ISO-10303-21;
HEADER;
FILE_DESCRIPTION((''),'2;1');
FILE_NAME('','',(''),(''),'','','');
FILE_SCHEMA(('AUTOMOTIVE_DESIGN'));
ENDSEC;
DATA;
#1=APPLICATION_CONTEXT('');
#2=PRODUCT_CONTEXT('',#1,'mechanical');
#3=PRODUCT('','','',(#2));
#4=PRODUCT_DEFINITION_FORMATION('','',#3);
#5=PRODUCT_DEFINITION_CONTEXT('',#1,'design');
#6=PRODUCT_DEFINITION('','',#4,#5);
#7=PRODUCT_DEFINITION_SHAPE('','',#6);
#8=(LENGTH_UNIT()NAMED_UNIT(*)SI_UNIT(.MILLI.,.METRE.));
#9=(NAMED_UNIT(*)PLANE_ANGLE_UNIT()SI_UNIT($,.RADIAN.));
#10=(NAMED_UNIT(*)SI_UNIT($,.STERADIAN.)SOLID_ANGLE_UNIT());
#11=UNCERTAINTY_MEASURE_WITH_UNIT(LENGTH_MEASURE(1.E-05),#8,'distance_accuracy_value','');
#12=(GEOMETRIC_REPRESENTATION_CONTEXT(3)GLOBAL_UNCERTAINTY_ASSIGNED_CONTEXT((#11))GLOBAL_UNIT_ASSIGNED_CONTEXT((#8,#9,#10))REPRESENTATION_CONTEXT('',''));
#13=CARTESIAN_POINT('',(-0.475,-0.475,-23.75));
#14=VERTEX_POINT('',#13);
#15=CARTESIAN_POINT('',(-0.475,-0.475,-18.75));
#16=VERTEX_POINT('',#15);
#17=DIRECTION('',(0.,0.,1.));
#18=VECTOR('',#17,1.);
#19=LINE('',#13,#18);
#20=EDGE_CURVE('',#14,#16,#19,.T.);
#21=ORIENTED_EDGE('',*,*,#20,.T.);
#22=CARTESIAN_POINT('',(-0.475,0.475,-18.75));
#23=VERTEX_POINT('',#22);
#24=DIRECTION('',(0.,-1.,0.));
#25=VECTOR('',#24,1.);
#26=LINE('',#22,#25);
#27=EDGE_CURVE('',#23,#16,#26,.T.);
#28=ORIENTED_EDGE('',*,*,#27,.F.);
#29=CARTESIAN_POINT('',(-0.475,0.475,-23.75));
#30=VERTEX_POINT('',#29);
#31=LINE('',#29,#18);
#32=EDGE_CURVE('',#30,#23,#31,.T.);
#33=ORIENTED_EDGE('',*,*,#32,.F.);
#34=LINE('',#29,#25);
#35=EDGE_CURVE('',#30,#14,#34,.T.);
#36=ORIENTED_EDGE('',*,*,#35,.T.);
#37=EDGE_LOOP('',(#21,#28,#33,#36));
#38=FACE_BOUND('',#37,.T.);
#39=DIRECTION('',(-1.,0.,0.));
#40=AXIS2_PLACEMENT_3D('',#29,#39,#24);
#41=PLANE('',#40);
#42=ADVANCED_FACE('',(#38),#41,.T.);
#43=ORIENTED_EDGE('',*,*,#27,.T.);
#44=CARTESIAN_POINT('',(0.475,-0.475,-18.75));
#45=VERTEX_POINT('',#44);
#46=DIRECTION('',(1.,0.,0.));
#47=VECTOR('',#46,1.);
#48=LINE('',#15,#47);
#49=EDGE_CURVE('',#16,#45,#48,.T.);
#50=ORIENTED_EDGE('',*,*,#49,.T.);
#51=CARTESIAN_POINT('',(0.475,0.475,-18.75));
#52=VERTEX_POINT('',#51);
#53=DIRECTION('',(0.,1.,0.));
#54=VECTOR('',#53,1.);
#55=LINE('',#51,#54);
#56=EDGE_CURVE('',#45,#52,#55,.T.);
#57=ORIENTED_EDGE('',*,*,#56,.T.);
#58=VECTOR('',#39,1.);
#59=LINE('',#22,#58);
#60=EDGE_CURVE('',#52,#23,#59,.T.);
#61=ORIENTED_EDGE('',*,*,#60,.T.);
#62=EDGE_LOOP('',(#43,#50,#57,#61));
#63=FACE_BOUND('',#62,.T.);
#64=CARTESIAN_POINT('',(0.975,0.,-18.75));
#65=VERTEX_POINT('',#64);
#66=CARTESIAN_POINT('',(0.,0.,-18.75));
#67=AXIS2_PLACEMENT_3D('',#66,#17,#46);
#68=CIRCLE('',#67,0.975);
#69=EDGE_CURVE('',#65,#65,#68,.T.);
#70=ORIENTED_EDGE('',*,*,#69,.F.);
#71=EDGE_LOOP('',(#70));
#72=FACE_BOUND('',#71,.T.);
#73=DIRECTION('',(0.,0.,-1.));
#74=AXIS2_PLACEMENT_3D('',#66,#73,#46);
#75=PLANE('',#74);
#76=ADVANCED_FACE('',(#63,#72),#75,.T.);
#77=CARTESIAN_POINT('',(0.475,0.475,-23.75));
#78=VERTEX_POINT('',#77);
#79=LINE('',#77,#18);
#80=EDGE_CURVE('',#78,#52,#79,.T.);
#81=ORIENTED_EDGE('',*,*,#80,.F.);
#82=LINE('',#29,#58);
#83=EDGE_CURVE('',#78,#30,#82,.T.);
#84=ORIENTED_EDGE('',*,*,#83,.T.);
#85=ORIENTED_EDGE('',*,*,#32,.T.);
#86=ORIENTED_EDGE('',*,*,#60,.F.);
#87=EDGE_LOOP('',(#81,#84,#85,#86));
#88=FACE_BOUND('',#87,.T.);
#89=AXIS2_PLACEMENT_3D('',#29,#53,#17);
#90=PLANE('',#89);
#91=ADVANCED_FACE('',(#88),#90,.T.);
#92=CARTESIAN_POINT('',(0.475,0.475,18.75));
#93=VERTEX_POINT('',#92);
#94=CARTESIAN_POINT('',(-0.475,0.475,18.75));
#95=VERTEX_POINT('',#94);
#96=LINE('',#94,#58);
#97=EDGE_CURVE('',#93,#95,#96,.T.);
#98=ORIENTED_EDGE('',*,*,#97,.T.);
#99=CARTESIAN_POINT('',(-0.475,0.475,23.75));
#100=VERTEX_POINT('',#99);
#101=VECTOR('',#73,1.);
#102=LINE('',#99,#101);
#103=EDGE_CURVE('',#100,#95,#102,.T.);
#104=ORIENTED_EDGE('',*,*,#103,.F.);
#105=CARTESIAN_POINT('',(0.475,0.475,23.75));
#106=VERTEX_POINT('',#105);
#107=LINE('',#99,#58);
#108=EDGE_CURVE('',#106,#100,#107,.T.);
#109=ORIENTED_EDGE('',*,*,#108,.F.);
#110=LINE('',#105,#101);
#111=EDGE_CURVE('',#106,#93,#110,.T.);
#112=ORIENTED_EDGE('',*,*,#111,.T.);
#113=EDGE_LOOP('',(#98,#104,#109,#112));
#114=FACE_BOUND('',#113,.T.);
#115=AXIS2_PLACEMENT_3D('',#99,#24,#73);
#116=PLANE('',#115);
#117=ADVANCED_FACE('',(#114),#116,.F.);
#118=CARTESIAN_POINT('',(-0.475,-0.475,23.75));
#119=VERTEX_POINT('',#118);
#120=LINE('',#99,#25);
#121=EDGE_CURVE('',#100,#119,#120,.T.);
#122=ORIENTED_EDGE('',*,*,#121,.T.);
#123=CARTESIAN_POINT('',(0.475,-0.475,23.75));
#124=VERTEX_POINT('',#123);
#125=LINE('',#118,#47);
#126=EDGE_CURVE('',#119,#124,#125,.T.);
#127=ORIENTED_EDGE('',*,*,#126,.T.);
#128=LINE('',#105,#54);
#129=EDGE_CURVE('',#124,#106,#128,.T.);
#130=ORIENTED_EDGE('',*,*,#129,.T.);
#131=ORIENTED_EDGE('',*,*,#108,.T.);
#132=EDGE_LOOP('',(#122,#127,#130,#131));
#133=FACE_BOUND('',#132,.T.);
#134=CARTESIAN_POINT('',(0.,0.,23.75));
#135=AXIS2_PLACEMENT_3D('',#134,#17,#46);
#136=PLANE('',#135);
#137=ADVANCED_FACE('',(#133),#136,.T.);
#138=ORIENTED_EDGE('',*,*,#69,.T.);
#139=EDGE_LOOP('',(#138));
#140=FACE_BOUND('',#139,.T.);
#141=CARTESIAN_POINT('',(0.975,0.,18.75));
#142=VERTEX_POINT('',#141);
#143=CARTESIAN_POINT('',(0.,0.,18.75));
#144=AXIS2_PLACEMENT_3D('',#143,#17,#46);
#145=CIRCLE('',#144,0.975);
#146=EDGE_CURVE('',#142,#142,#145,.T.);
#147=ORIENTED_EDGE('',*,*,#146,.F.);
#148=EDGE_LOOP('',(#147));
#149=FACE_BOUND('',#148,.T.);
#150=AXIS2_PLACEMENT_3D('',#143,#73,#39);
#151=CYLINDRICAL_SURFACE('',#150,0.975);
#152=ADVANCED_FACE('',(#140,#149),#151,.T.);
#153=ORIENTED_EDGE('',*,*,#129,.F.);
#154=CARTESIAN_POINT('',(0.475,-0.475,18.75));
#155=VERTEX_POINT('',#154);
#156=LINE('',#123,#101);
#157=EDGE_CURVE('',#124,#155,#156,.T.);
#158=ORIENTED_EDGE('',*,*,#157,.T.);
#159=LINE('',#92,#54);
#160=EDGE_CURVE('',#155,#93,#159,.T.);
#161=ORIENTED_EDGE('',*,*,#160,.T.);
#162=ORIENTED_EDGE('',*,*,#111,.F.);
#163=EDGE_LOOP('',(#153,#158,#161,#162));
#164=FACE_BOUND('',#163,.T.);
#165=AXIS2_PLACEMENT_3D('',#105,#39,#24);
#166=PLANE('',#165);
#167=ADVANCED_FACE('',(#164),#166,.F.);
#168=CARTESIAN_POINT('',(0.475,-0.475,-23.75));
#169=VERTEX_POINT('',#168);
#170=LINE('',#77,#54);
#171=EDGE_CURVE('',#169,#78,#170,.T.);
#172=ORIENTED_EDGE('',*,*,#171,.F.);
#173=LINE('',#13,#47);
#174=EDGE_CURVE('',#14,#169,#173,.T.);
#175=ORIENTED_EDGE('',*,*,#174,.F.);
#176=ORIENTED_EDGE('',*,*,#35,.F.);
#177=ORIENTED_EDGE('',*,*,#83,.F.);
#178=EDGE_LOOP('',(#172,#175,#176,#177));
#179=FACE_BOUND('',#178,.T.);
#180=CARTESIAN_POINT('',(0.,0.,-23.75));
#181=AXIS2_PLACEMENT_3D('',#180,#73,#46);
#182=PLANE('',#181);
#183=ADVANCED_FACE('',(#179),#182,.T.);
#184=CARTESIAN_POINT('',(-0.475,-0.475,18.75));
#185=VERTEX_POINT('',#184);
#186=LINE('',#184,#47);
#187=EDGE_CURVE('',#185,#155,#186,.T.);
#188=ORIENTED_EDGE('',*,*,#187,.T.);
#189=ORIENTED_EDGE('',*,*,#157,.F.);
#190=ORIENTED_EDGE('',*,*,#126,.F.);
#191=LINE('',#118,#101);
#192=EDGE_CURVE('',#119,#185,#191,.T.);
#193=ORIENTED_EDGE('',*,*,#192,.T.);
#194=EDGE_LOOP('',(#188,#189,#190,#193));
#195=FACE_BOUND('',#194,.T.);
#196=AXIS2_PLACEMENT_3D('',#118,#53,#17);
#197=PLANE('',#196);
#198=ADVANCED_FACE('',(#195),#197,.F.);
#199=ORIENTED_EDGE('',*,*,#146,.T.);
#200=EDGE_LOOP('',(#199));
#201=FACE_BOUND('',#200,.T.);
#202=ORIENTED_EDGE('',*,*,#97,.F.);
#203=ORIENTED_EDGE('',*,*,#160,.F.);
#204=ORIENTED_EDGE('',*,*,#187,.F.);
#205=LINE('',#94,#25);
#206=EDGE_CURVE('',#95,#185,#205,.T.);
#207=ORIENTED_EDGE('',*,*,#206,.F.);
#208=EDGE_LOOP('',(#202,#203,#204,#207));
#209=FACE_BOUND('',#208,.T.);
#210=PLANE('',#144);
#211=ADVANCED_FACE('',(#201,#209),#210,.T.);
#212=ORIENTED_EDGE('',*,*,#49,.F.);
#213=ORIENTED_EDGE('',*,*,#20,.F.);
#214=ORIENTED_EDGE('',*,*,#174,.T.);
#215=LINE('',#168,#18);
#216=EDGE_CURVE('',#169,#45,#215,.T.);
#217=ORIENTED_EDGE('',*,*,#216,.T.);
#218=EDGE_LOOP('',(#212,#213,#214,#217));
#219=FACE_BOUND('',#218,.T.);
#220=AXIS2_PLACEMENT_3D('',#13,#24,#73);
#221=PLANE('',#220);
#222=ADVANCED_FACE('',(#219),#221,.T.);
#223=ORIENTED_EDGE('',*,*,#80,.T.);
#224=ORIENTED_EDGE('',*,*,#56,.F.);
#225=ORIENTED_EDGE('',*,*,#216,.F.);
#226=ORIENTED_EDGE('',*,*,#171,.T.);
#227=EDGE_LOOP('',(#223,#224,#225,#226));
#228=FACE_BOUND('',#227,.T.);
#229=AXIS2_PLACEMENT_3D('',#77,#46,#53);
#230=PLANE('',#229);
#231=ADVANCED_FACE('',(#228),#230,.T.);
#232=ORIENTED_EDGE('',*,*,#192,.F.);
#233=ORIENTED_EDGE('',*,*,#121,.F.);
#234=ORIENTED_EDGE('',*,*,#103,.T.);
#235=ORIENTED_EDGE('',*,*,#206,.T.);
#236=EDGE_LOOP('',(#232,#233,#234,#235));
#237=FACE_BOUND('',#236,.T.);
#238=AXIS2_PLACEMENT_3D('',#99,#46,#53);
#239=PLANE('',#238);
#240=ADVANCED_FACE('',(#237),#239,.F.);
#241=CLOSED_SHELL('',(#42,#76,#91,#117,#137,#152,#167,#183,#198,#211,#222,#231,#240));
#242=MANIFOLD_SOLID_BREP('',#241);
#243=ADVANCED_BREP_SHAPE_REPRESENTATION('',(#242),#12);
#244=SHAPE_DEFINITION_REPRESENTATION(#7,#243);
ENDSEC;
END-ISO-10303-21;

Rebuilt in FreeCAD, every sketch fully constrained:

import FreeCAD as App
import Part
import Sketcher
Q = App.Units.Quantity

doc = App.newDocument("Part")
body = doc.addObject("PartDesign::Body", "Body")

sketch1 = body.newObject("Sketcher::SketchObject", "Sketch")
sketch1.AttachmentSupport = (doc.getObject("XY_Plane"), [""])
sketch1.MapMode = "FlatFace"
sketch1.addGeometry(Part.Circle(App.Vector(0, 0, 0), App.Vector(0, 0, 1), 1), False)
sketch1.addConstraint([
    Sketcher.Constraint("Coincident", 0, 3, -1, 1),
    Sketcher.Constraint("Diameter", 0, Q("1.95 mm")),
])
pad1 = body.newObject("PartDesign::Pad", "Pad")
pad1.Profile = sketch1
pad1.Length = 18.75

sketch2 = body.newObject("Sketcher::SketchObject", "Sketch001")
sketch2.AttachmentSupport = (doc.getObject("XY_Plane"), [""])
sketch2.MapMode = "FlatFace"
sketch2.AttachmentOffset = App.Placement(App.Vector(0, 0, 18.75), App.Rotation())
sketch2.addGeometry([
    Part.LineSegment(App.Vector(-0.5, 0.5, 0), App.Vector(-0.5, -0.5, 0)),
    Part.LineSegment(App.Vector(-0.5, -0.5, 0), App.Vector(0.5, -0.5, 0)),
    Part.LineSegment(App.Vector(0.5, -0.5, 0), App.Vector(0.5, 0.5, 0)),
    Part.LineSegment(App.Vector(0.5, 0.5, 0), App.Vector(-0.5, 0.5, 0)),
], False)
sketch2.addConstraint([
    Sketcher.Constraint("Coincident", 0, 2, 1, 1),
    Sketcher.Constraint("Coincident", 1, 2, 2, 1),
    Sketcher.Constraint("Coincident", 2, 2, 3, 1),
    Sketcher.Constraint("Coincident", 3, 2, 0, 1),
    Sketcher.Constraint("Vertical", 0),
    Sketcher.Constraint("Horizontal", 1),
    Sketcher.Constraint("Vertical", 2),
    Sketcher.Constraint("Horizontal", 3),
    Sketcher.Constraint("Symmetric", 0, 2, 2, 2, -1, 1),
    Sketcher.Constraint("Equal", 3, 0),
    Sketcher.Constraint("DistanceX", 1, 1, 1, 2, Q("0.95 mm")),
])
pad2 = body.newObject("PartDesign::Pad", "Pad001")
pad2.Profile = sketch2
pad2.Length = 5
doc.recompute()

mirrored = body.newObject("PartDesign::Mirrored", "Mirrored")
mirrored.Originals = [pad1, pad2]
mirrored.MirrorPlane = (doc.getObject("XY_Plane"), [""])
body.Tip = mirrored

doc.recompute()
